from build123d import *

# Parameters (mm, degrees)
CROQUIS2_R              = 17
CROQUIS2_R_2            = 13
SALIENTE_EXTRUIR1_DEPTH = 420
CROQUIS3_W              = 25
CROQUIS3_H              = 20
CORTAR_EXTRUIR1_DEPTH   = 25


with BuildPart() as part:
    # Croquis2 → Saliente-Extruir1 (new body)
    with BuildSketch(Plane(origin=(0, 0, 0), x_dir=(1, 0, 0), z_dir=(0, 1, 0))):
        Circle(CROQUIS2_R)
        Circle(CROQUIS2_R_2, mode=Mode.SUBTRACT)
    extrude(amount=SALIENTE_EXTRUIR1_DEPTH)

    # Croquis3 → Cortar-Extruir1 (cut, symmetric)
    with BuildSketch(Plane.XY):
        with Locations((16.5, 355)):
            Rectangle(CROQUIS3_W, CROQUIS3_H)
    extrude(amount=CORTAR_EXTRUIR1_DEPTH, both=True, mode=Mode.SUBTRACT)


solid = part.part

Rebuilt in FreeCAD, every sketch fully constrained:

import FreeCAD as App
import Part
import Sketcher

V = App.Vector

doc = App.newDocument("Part")
body = doc.addObject("PartDesign::Body", "Body")

# Sketch on XZ plane
sketch1 = body.newObject("Sketcher::SketchObject", "Sketch")
sketch1.AttachmentSupport = (doc.getObject("XZ_Plane"), [""])
sketch1.MapMode = "FlatFace"
sketch1.addGeometry(Part.Circle(V(0, 0, 0), V(0, 0, 1), 17), False)
sketch1.addGeometry(Part.Circle(V(0, 0, 0), V(0, 0, 1), 13), False)
sketch1.addConstraint(Sketcher.Constraint("Coincident", 0, 3, -1, 1))
sketch1.addConstraint(Sketcher.Constraint("Coincident", 1, 3, -1, 1))
sketch1.addConstraint(Sketcher.Constraint("Diameter", 0, 34.0))
sketch1.addConstraint(Sketcher.Constraint("Diameter", 1, 26.0))
pad1 = body.newObject("PartDesign::Pad", "Pad")
pad1.Profile = sketch1
pad1.Length = 420
pad1.Reversed = True

# Sketch on XY plane
sketch2 = body.newObject("Sketcher::SketchObject", "Sketch001")
sketch2.AttachmentSupport = (doc.getObject("XY_Plane"), [""])
sketch2.MapMode = "FlatFace"
sketch2.addGeometry(Part.LineSegment(V(4, 365, 0), V(4, 345, 0)), False)
sketch2.addGeometry(Part.LineSegment(V(4, 345, 0), V(29, 345, 0)), False)
sketch2.addGeometry(Part.LineSegment(V(29, 345, 0), V(29, 365, 0)), False)
sketch2.addGeometry(Part.LineSegment(V(29, 365, 0), V(4, 365, 0)), False)
sketch2.addConstraint(Sketcher.Constraint("Coincident", 0, 2, 1, 1))
sketch2.addConstraint(Sketcher.Constraint("Coincident", 1, 2, 2, 1))
sketch2.addConstraint(Sketcher.Constraint("Coincident", 2, 2, 3, 1))
sketch2.addConstraint(Sketcher.Constraint("Coincident", 3, 2, 0, 1))
sketch2.addConstraint(Sketcher.Constraint("Vertical", 0))
sketch2.addConstraint(Sketcher.Constraint("Horizontal", 1))
sketch2.addConstraint(Sketcher.Constraint("Vertical", 2))
sketch2.addConstraint(Sketcher.Constraint("Horizontal", 3))
sketch2.addConstraint(Sketcher.Constraint("DistanceX", 1, 1, 1, 2, 25.0))
sketch2.addConstraint(Sketcher.Constraint("DistanceY", 0, 2, 0, 1, 20.0))
sketch2.addConstraint(Sketcher.Constraint("DistanceX", -1, 1, 0, 2, 4.0))
sketch2.addConstraint(Sketcher.Constraint("DistanceY", -1, 1, 0, 2, 345.0))
pocket1 = body.newObject("PartDesign::Pocket", "Pocket")
pocket1.Profile = sketch2
pocket1.Length = 50
pocket1.Midplane = True

doc.recompute()
